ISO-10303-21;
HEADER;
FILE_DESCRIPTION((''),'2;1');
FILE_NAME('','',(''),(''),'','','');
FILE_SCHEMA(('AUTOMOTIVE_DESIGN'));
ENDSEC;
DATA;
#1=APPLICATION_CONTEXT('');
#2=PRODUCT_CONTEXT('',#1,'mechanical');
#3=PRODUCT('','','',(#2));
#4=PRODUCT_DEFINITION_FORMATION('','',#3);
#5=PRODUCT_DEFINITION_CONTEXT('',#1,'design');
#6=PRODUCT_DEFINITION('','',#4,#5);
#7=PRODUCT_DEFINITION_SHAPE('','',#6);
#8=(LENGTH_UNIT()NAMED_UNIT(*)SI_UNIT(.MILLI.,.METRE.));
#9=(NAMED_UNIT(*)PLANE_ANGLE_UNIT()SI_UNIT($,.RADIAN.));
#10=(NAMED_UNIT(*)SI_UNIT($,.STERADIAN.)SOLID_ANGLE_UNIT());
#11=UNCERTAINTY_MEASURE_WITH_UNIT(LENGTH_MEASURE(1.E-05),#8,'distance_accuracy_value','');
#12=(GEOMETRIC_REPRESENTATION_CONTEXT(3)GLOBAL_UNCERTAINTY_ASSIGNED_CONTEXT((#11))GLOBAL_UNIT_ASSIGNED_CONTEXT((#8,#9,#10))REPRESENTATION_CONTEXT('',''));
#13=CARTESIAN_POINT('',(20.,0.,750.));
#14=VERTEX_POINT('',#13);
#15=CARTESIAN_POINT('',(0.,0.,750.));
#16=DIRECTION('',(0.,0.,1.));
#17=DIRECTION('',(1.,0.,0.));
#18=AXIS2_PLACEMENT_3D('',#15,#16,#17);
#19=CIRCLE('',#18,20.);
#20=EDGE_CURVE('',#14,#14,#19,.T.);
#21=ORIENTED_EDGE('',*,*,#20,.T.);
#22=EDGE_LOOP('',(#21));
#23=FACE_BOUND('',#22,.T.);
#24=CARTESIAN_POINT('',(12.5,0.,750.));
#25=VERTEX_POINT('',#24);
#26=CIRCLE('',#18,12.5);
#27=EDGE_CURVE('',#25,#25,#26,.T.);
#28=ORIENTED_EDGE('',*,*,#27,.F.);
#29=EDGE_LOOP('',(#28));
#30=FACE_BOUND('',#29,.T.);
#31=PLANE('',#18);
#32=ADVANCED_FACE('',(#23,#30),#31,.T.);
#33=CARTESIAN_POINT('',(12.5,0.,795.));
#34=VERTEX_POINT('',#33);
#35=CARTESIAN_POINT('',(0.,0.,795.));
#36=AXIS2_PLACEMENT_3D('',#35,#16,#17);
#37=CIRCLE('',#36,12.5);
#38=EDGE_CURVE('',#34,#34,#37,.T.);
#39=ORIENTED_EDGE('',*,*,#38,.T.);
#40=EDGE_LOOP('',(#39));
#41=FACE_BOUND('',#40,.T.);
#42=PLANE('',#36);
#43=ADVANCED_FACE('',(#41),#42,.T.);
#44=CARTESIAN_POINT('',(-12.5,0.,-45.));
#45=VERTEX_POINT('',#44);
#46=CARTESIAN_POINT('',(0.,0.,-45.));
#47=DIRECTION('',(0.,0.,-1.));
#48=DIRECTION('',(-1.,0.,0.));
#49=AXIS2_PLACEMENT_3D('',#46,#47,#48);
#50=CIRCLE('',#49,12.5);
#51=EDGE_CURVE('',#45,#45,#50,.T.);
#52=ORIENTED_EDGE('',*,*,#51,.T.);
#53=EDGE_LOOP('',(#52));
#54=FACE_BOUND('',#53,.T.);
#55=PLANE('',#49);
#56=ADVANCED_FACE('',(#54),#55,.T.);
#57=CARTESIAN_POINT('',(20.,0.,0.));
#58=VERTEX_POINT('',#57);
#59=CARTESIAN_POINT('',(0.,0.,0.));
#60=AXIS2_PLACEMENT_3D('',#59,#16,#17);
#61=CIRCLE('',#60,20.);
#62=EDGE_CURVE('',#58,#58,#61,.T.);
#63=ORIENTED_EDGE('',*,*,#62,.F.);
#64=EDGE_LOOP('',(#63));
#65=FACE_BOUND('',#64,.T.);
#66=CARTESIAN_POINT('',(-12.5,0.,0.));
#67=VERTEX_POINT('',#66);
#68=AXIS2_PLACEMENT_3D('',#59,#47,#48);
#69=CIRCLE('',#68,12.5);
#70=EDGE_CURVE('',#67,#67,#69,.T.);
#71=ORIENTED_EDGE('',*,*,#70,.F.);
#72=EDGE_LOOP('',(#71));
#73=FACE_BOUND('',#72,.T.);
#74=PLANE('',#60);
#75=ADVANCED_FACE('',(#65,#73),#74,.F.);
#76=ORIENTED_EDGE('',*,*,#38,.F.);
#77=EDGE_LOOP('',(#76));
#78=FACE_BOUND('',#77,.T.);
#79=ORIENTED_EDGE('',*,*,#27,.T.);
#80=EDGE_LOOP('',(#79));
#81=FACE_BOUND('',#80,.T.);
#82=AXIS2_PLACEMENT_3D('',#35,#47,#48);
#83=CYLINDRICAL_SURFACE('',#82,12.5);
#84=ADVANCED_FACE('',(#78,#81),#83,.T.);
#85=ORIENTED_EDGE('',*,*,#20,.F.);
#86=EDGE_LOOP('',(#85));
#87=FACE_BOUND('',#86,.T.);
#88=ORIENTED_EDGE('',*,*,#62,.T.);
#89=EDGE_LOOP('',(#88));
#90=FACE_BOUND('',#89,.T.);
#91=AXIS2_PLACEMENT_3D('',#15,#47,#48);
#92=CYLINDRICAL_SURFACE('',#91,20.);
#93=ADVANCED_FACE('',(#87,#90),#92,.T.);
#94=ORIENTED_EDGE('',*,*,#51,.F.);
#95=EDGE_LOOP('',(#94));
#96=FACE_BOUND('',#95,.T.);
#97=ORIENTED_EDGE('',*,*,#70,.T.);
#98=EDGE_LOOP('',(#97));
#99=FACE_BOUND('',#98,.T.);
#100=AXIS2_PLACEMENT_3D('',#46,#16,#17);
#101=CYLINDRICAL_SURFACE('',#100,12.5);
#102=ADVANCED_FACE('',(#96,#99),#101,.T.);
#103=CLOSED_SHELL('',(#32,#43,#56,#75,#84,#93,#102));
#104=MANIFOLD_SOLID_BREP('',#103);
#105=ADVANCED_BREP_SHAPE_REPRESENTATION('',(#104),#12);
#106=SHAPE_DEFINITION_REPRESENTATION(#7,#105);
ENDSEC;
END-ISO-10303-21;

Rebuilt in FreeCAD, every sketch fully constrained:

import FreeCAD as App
import Part
import Sketcher
from FreeCAD import Vector

doc = App.newDocument("Part")
params = doc.addObject("Spreadsheet::Sheet", "Params")
for row, (alias, value) in enumerate([
    ("sketch1_diameter", "40 mm"),
    ("pad1_length", "750 mm"),
    ("sketch2_diameter", "25 mm"),
    ("pad2_length", "45 mm"),
    ("sketch3_diameter", "25 mm"),
    ("pad3_length", "45 mm"),
], start=1):
    params.set(f"A{row}", alias)
    params.set(f"B{row}", "=" + value)
    params.setAlias(f"B{row}", alias)

body = doc.addObject("PartDesign::Body", "Body")

# Sketch on XY plane
sketch1 = doc.addObject("Sketcher::SketchObject", "Sketch")
body.addObject(sketch1)
sketch1.AttachmentSupport = (doc.XY_Plane, [""])
sketch1.MapMode = "FlatFace"
sketch1.addGeometry(Part.Circle(Vector(0, 0, 0), Vector(0, 0, 1), 20), False)
sketch1.addConstraint(Sketcher.Constraint("Coincident", 0, 3, -1, 1))
sketch1.addConstraint(Sketcher.Constraint("Diameter", 0, 40.0))
sketch1.setExpression("Constraints[1]", "Params.sketch1_diameter")
pad1 = doc.addObject("PartDesign::Pad", "Pad")
body.addObject(pad1)
pad1.Profile = sketch1
pad1.setExpression("Length", "Params.pad1_length")

# Sketch on XY plane
sketch2 = doc.addObject("Sketcher::SketchObject", "Sketch001")
body.addObject(sketch2)
sketch2.AttachmentSupport = (doc.XY_Plane, [""])
sketch2.MapMode = "FlatFace"
sketch2.AttachmentOffset = App.Placement(Vector(0, 0, 750), App.Rotation())
sketch2.addGeometry(Part.Circle(Vector(0, 0, 0), Vector(0, 0, 1), 12.5), False)
sketch2.addConstraint(Sketcher.Constraint("Coincident", 0, 3, -1, 1))
sketch2.addConstraint(Sketcher.Constraint("Diameter", 0, 25.0))
sketch2.setExpression("Constraints[1]", "Params.sketch2_diameter")
pad2 = doc.addObject("PartDesign::Pad", "Pad001")
body.addObject(pad2)
pad2.Profile = sketch2
pad2.setExpression("Length", "Params.pad2_length")

# Sketch on XY plane
sketch3 = doc.addObject("Sketcher::SketchObject", "Sketch002")
body.addObject(sketch3)
sketch3.AttachmentSupport = (doc.XY_Plane, [""])
sketch3.MapMode = "FlatFace"
sketch3.addGeometry(Part.Circle(Vector(0, 0, 0), Vector(0, 0, 1), 12.5), False)
sketch3.addConstraint(Sketcher.Constraint("Coincident", 0, 3, -1, 1))
sketch3.addConstraint(Sketcher.Constraint("Diameter", 0, 25.0))
sketch3.setExpression("Constraints[1]", "Params.sketch3_diameter")
pad3 = doc.addObject("PartDesign::Pad", "Pad002")
body.addObject(pad3)
pad3.Profile = sketch3
pad3.setExpression("Length", "Params.pad3_length")
pad3.Reversed = True

doc.recompute()
